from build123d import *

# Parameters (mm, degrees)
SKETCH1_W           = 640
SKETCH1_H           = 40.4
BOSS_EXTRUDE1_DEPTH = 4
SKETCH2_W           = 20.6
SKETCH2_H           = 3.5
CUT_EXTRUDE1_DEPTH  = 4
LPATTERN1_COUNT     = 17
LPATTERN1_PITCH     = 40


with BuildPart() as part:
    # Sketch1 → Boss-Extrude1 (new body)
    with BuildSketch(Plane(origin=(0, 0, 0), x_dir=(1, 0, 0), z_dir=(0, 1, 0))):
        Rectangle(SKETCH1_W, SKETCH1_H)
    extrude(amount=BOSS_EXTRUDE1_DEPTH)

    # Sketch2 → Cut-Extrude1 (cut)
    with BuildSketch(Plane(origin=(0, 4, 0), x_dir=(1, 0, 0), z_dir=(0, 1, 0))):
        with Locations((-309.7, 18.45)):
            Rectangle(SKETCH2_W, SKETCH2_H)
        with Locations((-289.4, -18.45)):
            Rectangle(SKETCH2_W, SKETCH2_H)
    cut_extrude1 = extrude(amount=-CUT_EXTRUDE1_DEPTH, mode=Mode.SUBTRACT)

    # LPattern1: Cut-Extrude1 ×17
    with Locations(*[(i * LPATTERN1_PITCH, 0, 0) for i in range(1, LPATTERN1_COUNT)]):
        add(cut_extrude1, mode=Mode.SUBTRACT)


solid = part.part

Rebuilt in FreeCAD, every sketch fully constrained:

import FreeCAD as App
import Part
import Sketcher

V = App.Vector


def add_polygon(sketch, points):
    """Adds a closed chain of lines whose ends are joined by coincident constraints."""
    first, n = sketch.GeometryCount, len(points)
    for a, b in zip(points, points[1:] + points[:1]):
        sketch.addGeometry(Part.LineSegment(App.Vector(*a, 0), App.Vector(*b, 0)), False)
    for i in range(n):
        sketch.addConstraint(Sketcher.Constraint("Coincident", first + i, 2, first + (i + 1) % n, 1))

doc = App.newDocument("Part")
body = doc.addObject("PartDesign::Body", "Body")

# Sketch on XZ plane
sketch1 = body.newObject("Sketcher::SketchObject", "Sketch")
sketch1.AttachmentSupport = (doc.getObject("XZ_Plane"), [""])
sketch1.MapMode = "FlatFace"
add_polygon(sketch1, [(-320, -20), (-320, 20), (320, 20), (320, -20)])  # lines 0-3
sketch1.addConstraint(Sketcher.Constraint("Vertical", 0))
sketch1.addConstraint(Sketcher.Constraint("Horizontal", 1))
sketch1.addConstraint(Sketcher.Constraint("Vertical", 2))
sketch1.addConstraint(Sketcher.Constraint("Horizontal", 3))
sketch1.addConstraint(Sketcher.Constraint("Symmetric", 0, 2, 2, 2, -1, 1))
sketch1.addConstraint(Sketcher.Constraint("DistanceX", 1, 1, 1, 2, 640.0))
sketch1.addConstraint(Sketcher.Constraint("DistanceY", 0, 1, 0, 2, 40.4))
pad1 = body.newObject("PartDesign::Pad", "Pad")
pad1.Profile = sketch1
pad1.Length = 4
pad1.Reversed = True

# Sketch on XZ plane
sketch2 = body.newObject("Sketcher::SketchObject", "Sketch001")
sketch2.AttachmentSupport = (doc.getObject("XZ_Plane"), [""])
sketch2.MapMode = "FlatFace"
sketch2.AttachmentOffset = App.Placement(V(0, 0, -4), App.Rotation())
add_polygon(sketch2, [(-320, -20.2), (-320, -16.7), (-299.4, -16.7), (-299.4, -20.2)])  # lines 0-3
add_polygon(sketch2, [(-299.7, 16.7), (-299.7, 20.2), (-279.1, 20.2), (-279.1, 16.7)])  # lines 4-7
sketch2.addConstraint(Sketcher.Constraint("Vertical", 0))
sketch2.addConstraint(Sketcher.Constraint("Horizontal", 1))
sketch2.addConstraint(Sketcher.Constraint("Vertical", 2))
sketch2.addConstraint(Sketcher.Constraint("Horizontal", 3))
sketch2.addConstraint(Sketcher.Constraint("Vertical", 4))
sketch2.addConstraint(Sketcher.Constraint("Horizontal", 5))
sketch2.addConstraint(Sketcher.Constraint("Vertical", 6))
sketch2.addConstraint(Sketcher.Constraint("Horizontal", 7))
sketch2.addConstraint(Sketcher.Constraint("Equal", 3, 5))
sketch2.addConstraint(Sketcher.Constraint("Equal", 2, 4))
sketch2.addConstraint(Sketcher.Constraint("DistanceX", 1, 1, 1, 2, 20.6))
sketch2.addConstraint(Sketcher.Constraint("DistanceY", 0, 1, 0, 2, 3.5))
sketch2.addConstraint(Sketcher.Constraint("DistanceX", 0, 2, -1, 1, 320.0))
sketch2.addConstraint(Sketcher.Constraint("DistanceY", 0, 2, -1, 1, 16.7))
sketch2.addConstraint(Sketcher.Constraint("DistanceX", 4, 2, -1, 1, 299.7))
sketch2.addConstraint(Sketcher.Constraint("DistanceY", -1, 1, 4, 2, 20.2))
pocket1 = body.newObject("PartDesign::Pocket", "Pocket")
pocket1.Profile = sketch2
pocket1.Length = 4
pocket1.Reversed = True
doc.recompute()

linearpattern = body.newObject("PartDesign::LinearPattern", "LinearPattern")
linearpattern.Originals = [pocket1]
linearpattern.Direction = (doc.getObject("X_Axis"), [""])
linearpattern.Mode = "offset"
linearpattern.Offset = 40
linearpattern.Occurrences = 17
body.Tip = linearpattern

doc.recompute()
